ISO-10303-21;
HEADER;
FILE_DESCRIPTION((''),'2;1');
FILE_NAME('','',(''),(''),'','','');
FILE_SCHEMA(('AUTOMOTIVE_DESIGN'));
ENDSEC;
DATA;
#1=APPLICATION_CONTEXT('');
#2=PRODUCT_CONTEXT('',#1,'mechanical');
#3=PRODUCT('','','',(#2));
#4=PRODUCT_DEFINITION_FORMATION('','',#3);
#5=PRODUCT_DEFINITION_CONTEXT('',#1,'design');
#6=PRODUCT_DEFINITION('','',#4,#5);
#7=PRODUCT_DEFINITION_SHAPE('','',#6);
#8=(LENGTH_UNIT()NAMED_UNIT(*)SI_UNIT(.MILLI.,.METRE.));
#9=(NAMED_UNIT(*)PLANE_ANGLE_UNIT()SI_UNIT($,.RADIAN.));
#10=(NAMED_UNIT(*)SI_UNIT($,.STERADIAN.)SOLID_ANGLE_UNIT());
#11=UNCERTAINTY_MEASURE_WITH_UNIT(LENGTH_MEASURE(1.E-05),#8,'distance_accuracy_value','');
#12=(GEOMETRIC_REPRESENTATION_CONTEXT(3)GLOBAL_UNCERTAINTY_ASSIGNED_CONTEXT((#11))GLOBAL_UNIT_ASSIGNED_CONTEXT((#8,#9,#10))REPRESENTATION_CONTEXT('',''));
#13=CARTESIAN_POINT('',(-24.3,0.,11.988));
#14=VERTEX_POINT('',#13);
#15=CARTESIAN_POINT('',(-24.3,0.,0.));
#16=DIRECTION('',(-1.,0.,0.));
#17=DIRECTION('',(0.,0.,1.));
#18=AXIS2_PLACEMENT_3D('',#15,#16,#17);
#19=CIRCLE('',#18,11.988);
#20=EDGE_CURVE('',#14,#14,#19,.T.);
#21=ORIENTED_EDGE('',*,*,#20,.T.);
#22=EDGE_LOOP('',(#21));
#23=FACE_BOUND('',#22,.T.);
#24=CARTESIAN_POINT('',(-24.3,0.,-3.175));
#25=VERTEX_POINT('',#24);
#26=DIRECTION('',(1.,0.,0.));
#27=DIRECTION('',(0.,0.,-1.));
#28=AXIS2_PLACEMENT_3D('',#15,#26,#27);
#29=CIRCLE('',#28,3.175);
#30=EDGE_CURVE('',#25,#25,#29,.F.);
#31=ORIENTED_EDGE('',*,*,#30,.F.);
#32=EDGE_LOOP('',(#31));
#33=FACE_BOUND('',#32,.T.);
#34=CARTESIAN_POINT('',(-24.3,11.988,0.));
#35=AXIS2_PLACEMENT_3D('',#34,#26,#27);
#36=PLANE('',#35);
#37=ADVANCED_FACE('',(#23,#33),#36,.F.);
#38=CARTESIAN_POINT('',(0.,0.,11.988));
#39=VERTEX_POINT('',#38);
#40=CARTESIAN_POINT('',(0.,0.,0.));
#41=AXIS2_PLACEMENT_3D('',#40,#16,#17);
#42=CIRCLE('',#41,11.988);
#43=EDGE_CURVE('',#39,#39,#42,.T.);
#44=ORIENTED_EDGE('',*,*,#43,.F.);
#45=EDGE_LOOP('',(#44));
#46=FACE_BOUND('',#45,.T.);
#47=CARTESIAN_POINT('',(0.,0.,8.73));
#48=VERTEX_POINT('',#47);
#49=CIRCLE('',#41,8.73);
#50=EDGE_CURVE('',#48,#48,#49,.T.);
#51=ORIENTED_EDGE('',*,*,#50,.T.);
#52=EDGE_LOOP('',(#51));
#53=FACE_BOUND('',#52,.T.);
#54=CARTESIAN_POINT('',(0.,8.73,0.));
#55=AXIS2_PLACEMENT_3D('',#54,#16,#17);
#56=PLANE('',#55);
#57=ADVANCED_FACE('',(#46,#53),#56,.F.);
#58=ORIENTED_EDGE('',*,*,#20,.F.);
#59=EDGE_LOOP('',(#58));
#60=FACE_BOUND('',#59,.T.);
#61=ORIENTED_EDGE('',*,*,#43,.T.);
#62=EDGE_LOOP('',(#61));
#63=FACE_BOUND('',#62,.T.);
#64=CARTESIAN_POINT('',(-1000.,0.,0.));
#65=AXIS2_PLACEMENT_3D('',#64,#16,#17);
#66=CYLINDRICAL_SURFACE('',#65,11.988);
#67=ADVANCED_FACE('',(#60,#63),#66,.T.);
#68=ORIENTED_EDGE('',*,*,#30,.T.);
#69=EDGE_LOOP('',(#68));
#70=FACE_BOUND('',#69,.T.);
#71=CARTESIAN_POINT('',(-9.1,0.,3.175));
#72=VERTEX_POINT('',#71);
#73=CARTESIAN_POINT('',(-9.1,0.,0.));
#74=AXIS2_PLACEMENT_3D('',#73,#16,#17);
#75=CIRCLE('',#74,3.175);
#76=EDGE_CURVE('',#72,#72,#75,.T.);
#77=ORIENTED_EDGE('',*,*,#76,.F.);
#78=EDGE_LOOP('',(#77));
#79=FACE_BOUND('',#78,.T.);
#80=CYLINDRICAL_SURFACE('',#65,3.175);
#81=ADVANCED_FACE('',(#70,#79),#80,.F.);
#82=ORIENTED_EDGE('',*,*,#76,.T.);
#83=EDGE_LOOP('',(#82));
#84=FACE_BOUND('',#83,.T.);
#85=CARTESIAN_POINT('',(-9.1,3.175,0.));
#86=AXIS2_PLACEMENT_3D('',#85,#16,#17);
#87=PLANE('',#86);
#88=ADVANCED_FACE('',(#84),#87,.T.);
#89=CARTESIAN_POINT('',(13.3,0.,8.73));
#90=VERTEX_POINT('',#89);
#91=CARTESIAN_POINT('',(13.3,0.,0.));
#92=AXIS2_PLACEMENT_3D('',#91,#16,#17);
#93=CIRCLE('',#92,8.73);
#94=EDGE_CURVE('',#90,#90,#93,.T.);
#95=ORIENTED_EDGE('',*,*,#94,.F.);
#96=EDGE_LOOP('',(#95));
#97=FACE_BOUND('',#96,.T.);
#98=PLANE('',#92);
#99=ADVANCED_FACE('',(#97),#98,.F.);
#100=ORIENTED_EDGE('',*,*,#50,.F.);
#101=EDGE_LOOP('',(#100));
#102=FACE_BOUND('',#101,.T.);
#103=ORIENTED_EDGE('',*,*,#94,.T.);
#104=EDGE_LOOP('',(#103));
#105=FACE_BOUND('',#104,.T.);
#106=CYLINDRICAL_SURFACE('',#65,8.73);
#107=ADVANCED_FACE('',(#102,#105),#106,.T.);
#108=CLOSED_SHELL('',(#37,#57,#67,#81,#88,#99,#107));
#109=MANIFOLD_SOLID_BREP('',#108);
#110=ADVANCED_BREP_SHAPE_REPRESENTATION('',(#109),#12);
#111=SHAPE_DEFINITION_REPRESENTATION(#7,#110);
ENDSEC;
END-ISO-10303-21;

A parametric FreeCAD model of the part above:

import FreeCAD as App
import Part
import Sketcher
from FreeCAD import Vector
Q = App.Units.Quantity

doc = App.newDocument("Part")
body = doc.addObject("PartDesign::Body", "Body")

sketch1 = body.newObject("Sketcher::SketchObject", "Sketch")
sketch1.AttachmentSupport = (doc.getObject("XY_Plane"), [""])
sketch1.MapMode = "FlatFace"
sketch1.addGeometry([
    Part.LineSegment(Vector(13.3, 0, 0), Vector(13.3, 8.7, 0)),
    Part.LineSegment(Vector(13.3, 8.7, 0), Vector(0, 8.7, 0)),
    Part.LineSegment(Vector(0, 8.7, 0), Vector(0, 12, 0)),
    Part.LineSegment(Vector(0, 12, 0), Vector(-24.3, 12, 0)),
    Part.LineSegment(Vector(-24.3, 12, 0), Vector(-24.3, 0, 0)),
    Part.LineSegment(Vector(-24.3, 0, 0), Vector(13.3, 0, 0)),
], False)
sketch1.addConstraint([
    Sketcher.Constraint("Coincident", 0, 2, 1, 1),
    Sketcher.Constraint("Coincident", 1, 2, 2, 1),
    Sketcher.Constraint("Coincident", 2, 2, 3, 1),
    Sketcher.Constraint("Coincident", 3, 2, 4, 1),
    Sketcher.Constraint("Coincident", 4, 2, 5, 1),
    Sketcher.Constraint("Coincident", 5, 2, 0, 1),
    Sketcher.Constraint("Vertical", 0),
    Sketcher.Constraint("Horizontal", 1),
    Sketcher.Constraint("Vertical", 2),
    Sketcher.Constraint("Horizontal", 3),
    Sketcher.Constraint("Vertical", 4),
    Sketcher.Constraint("Horizontal", 5),
    Sketcher.Constraint("PointOnObject", 1, 2, -2),
    Sketcher.Constraint("PointOnObject", 4, 2, -1),
    Sketcher.Constraint("DistanceX", 1, 2, 1, 1, Q("13.3 mm")),
    Sketcher.Constraint("DistanceX", 3, 2, 3, 1, Q("24.3 mm")),
    Sketcher.Constraint("DistanceY", 0, 1, 0, 2, Q("8.73 mm")),
    Sketcher.Constraint("DistanceY", 2, 1, 2, 2, Q("3.258 mm")),
])
revolution = body.newObject("PartDesign::Revolution", "Revolution")
revolution.Profile = sketch1
revolution.ReferenceAxis = (sketch1, ["H_Axis"])
revolution.Angle = 360

sketch2 = body.newObject("Sketcher::SketchObject", "Sketch001")
sketch2.AttachmentSupport = (doc.getObject("XY_Plane"), [""])
sketch2.MapMode = "FlatFace"
sketch2.addGeometry([
    Part.LineSegment(Vector(-25.3, 3.2, 0), Vector(-25.3, 0, 0)),
    Part.LineSegment(Vector(-25.3, 0, 0), Vector(-9.1, 0, 0)),
    Part.LineSegment(Vector(-9.1, 0, 0), Vector(-9.1, 3.2, 0)),
    Part.LineSegment(Vector(-9.1, 3.2, 0), Vector(-25.3, 3.2, 0)),
], False)
sketch2.addConstraint([
    Sketcher.Constraint("Coincident", 0, 2, 1, 1),
    Sketcher.Constraint("Coincident", 1, 2, 2, 1),
    Sketcher.Constraint("Coincident", 2, 2, 3, 1),
    Sketcher.Constraint("Coincident", 3, 2, 0, 1),
    Sketcher.Constraint("Vertical", 0),
    Sketcher.Constraint("Horizontal", 1),
    Sketcher.Constraint("Vertical", 2),
    Sketcher.Constraint("Horizontal", 3),
    Sketcher.Constraint("PointOnObject", 0, 2, -1),
    Sketcher.Constraint("DistanceX", 1, 1, 1, 2, Q("16.2 mm")),
    Sketcher.Constraint("DistanceX", 0, 2, -1, 1, Q("25.3 mm")),
    Sketcher.Constraint("DistanceY", 0, 2, 0, 1, Q("3.175 mm")),
])
groove = body.newObject("PartDesign::Groove", "Groove")
groove.Profile = sketch2
groove.ReferenceAxis = (sketch2, ["H_Axis"])
groove.Angle = 360

doc.recompute()
